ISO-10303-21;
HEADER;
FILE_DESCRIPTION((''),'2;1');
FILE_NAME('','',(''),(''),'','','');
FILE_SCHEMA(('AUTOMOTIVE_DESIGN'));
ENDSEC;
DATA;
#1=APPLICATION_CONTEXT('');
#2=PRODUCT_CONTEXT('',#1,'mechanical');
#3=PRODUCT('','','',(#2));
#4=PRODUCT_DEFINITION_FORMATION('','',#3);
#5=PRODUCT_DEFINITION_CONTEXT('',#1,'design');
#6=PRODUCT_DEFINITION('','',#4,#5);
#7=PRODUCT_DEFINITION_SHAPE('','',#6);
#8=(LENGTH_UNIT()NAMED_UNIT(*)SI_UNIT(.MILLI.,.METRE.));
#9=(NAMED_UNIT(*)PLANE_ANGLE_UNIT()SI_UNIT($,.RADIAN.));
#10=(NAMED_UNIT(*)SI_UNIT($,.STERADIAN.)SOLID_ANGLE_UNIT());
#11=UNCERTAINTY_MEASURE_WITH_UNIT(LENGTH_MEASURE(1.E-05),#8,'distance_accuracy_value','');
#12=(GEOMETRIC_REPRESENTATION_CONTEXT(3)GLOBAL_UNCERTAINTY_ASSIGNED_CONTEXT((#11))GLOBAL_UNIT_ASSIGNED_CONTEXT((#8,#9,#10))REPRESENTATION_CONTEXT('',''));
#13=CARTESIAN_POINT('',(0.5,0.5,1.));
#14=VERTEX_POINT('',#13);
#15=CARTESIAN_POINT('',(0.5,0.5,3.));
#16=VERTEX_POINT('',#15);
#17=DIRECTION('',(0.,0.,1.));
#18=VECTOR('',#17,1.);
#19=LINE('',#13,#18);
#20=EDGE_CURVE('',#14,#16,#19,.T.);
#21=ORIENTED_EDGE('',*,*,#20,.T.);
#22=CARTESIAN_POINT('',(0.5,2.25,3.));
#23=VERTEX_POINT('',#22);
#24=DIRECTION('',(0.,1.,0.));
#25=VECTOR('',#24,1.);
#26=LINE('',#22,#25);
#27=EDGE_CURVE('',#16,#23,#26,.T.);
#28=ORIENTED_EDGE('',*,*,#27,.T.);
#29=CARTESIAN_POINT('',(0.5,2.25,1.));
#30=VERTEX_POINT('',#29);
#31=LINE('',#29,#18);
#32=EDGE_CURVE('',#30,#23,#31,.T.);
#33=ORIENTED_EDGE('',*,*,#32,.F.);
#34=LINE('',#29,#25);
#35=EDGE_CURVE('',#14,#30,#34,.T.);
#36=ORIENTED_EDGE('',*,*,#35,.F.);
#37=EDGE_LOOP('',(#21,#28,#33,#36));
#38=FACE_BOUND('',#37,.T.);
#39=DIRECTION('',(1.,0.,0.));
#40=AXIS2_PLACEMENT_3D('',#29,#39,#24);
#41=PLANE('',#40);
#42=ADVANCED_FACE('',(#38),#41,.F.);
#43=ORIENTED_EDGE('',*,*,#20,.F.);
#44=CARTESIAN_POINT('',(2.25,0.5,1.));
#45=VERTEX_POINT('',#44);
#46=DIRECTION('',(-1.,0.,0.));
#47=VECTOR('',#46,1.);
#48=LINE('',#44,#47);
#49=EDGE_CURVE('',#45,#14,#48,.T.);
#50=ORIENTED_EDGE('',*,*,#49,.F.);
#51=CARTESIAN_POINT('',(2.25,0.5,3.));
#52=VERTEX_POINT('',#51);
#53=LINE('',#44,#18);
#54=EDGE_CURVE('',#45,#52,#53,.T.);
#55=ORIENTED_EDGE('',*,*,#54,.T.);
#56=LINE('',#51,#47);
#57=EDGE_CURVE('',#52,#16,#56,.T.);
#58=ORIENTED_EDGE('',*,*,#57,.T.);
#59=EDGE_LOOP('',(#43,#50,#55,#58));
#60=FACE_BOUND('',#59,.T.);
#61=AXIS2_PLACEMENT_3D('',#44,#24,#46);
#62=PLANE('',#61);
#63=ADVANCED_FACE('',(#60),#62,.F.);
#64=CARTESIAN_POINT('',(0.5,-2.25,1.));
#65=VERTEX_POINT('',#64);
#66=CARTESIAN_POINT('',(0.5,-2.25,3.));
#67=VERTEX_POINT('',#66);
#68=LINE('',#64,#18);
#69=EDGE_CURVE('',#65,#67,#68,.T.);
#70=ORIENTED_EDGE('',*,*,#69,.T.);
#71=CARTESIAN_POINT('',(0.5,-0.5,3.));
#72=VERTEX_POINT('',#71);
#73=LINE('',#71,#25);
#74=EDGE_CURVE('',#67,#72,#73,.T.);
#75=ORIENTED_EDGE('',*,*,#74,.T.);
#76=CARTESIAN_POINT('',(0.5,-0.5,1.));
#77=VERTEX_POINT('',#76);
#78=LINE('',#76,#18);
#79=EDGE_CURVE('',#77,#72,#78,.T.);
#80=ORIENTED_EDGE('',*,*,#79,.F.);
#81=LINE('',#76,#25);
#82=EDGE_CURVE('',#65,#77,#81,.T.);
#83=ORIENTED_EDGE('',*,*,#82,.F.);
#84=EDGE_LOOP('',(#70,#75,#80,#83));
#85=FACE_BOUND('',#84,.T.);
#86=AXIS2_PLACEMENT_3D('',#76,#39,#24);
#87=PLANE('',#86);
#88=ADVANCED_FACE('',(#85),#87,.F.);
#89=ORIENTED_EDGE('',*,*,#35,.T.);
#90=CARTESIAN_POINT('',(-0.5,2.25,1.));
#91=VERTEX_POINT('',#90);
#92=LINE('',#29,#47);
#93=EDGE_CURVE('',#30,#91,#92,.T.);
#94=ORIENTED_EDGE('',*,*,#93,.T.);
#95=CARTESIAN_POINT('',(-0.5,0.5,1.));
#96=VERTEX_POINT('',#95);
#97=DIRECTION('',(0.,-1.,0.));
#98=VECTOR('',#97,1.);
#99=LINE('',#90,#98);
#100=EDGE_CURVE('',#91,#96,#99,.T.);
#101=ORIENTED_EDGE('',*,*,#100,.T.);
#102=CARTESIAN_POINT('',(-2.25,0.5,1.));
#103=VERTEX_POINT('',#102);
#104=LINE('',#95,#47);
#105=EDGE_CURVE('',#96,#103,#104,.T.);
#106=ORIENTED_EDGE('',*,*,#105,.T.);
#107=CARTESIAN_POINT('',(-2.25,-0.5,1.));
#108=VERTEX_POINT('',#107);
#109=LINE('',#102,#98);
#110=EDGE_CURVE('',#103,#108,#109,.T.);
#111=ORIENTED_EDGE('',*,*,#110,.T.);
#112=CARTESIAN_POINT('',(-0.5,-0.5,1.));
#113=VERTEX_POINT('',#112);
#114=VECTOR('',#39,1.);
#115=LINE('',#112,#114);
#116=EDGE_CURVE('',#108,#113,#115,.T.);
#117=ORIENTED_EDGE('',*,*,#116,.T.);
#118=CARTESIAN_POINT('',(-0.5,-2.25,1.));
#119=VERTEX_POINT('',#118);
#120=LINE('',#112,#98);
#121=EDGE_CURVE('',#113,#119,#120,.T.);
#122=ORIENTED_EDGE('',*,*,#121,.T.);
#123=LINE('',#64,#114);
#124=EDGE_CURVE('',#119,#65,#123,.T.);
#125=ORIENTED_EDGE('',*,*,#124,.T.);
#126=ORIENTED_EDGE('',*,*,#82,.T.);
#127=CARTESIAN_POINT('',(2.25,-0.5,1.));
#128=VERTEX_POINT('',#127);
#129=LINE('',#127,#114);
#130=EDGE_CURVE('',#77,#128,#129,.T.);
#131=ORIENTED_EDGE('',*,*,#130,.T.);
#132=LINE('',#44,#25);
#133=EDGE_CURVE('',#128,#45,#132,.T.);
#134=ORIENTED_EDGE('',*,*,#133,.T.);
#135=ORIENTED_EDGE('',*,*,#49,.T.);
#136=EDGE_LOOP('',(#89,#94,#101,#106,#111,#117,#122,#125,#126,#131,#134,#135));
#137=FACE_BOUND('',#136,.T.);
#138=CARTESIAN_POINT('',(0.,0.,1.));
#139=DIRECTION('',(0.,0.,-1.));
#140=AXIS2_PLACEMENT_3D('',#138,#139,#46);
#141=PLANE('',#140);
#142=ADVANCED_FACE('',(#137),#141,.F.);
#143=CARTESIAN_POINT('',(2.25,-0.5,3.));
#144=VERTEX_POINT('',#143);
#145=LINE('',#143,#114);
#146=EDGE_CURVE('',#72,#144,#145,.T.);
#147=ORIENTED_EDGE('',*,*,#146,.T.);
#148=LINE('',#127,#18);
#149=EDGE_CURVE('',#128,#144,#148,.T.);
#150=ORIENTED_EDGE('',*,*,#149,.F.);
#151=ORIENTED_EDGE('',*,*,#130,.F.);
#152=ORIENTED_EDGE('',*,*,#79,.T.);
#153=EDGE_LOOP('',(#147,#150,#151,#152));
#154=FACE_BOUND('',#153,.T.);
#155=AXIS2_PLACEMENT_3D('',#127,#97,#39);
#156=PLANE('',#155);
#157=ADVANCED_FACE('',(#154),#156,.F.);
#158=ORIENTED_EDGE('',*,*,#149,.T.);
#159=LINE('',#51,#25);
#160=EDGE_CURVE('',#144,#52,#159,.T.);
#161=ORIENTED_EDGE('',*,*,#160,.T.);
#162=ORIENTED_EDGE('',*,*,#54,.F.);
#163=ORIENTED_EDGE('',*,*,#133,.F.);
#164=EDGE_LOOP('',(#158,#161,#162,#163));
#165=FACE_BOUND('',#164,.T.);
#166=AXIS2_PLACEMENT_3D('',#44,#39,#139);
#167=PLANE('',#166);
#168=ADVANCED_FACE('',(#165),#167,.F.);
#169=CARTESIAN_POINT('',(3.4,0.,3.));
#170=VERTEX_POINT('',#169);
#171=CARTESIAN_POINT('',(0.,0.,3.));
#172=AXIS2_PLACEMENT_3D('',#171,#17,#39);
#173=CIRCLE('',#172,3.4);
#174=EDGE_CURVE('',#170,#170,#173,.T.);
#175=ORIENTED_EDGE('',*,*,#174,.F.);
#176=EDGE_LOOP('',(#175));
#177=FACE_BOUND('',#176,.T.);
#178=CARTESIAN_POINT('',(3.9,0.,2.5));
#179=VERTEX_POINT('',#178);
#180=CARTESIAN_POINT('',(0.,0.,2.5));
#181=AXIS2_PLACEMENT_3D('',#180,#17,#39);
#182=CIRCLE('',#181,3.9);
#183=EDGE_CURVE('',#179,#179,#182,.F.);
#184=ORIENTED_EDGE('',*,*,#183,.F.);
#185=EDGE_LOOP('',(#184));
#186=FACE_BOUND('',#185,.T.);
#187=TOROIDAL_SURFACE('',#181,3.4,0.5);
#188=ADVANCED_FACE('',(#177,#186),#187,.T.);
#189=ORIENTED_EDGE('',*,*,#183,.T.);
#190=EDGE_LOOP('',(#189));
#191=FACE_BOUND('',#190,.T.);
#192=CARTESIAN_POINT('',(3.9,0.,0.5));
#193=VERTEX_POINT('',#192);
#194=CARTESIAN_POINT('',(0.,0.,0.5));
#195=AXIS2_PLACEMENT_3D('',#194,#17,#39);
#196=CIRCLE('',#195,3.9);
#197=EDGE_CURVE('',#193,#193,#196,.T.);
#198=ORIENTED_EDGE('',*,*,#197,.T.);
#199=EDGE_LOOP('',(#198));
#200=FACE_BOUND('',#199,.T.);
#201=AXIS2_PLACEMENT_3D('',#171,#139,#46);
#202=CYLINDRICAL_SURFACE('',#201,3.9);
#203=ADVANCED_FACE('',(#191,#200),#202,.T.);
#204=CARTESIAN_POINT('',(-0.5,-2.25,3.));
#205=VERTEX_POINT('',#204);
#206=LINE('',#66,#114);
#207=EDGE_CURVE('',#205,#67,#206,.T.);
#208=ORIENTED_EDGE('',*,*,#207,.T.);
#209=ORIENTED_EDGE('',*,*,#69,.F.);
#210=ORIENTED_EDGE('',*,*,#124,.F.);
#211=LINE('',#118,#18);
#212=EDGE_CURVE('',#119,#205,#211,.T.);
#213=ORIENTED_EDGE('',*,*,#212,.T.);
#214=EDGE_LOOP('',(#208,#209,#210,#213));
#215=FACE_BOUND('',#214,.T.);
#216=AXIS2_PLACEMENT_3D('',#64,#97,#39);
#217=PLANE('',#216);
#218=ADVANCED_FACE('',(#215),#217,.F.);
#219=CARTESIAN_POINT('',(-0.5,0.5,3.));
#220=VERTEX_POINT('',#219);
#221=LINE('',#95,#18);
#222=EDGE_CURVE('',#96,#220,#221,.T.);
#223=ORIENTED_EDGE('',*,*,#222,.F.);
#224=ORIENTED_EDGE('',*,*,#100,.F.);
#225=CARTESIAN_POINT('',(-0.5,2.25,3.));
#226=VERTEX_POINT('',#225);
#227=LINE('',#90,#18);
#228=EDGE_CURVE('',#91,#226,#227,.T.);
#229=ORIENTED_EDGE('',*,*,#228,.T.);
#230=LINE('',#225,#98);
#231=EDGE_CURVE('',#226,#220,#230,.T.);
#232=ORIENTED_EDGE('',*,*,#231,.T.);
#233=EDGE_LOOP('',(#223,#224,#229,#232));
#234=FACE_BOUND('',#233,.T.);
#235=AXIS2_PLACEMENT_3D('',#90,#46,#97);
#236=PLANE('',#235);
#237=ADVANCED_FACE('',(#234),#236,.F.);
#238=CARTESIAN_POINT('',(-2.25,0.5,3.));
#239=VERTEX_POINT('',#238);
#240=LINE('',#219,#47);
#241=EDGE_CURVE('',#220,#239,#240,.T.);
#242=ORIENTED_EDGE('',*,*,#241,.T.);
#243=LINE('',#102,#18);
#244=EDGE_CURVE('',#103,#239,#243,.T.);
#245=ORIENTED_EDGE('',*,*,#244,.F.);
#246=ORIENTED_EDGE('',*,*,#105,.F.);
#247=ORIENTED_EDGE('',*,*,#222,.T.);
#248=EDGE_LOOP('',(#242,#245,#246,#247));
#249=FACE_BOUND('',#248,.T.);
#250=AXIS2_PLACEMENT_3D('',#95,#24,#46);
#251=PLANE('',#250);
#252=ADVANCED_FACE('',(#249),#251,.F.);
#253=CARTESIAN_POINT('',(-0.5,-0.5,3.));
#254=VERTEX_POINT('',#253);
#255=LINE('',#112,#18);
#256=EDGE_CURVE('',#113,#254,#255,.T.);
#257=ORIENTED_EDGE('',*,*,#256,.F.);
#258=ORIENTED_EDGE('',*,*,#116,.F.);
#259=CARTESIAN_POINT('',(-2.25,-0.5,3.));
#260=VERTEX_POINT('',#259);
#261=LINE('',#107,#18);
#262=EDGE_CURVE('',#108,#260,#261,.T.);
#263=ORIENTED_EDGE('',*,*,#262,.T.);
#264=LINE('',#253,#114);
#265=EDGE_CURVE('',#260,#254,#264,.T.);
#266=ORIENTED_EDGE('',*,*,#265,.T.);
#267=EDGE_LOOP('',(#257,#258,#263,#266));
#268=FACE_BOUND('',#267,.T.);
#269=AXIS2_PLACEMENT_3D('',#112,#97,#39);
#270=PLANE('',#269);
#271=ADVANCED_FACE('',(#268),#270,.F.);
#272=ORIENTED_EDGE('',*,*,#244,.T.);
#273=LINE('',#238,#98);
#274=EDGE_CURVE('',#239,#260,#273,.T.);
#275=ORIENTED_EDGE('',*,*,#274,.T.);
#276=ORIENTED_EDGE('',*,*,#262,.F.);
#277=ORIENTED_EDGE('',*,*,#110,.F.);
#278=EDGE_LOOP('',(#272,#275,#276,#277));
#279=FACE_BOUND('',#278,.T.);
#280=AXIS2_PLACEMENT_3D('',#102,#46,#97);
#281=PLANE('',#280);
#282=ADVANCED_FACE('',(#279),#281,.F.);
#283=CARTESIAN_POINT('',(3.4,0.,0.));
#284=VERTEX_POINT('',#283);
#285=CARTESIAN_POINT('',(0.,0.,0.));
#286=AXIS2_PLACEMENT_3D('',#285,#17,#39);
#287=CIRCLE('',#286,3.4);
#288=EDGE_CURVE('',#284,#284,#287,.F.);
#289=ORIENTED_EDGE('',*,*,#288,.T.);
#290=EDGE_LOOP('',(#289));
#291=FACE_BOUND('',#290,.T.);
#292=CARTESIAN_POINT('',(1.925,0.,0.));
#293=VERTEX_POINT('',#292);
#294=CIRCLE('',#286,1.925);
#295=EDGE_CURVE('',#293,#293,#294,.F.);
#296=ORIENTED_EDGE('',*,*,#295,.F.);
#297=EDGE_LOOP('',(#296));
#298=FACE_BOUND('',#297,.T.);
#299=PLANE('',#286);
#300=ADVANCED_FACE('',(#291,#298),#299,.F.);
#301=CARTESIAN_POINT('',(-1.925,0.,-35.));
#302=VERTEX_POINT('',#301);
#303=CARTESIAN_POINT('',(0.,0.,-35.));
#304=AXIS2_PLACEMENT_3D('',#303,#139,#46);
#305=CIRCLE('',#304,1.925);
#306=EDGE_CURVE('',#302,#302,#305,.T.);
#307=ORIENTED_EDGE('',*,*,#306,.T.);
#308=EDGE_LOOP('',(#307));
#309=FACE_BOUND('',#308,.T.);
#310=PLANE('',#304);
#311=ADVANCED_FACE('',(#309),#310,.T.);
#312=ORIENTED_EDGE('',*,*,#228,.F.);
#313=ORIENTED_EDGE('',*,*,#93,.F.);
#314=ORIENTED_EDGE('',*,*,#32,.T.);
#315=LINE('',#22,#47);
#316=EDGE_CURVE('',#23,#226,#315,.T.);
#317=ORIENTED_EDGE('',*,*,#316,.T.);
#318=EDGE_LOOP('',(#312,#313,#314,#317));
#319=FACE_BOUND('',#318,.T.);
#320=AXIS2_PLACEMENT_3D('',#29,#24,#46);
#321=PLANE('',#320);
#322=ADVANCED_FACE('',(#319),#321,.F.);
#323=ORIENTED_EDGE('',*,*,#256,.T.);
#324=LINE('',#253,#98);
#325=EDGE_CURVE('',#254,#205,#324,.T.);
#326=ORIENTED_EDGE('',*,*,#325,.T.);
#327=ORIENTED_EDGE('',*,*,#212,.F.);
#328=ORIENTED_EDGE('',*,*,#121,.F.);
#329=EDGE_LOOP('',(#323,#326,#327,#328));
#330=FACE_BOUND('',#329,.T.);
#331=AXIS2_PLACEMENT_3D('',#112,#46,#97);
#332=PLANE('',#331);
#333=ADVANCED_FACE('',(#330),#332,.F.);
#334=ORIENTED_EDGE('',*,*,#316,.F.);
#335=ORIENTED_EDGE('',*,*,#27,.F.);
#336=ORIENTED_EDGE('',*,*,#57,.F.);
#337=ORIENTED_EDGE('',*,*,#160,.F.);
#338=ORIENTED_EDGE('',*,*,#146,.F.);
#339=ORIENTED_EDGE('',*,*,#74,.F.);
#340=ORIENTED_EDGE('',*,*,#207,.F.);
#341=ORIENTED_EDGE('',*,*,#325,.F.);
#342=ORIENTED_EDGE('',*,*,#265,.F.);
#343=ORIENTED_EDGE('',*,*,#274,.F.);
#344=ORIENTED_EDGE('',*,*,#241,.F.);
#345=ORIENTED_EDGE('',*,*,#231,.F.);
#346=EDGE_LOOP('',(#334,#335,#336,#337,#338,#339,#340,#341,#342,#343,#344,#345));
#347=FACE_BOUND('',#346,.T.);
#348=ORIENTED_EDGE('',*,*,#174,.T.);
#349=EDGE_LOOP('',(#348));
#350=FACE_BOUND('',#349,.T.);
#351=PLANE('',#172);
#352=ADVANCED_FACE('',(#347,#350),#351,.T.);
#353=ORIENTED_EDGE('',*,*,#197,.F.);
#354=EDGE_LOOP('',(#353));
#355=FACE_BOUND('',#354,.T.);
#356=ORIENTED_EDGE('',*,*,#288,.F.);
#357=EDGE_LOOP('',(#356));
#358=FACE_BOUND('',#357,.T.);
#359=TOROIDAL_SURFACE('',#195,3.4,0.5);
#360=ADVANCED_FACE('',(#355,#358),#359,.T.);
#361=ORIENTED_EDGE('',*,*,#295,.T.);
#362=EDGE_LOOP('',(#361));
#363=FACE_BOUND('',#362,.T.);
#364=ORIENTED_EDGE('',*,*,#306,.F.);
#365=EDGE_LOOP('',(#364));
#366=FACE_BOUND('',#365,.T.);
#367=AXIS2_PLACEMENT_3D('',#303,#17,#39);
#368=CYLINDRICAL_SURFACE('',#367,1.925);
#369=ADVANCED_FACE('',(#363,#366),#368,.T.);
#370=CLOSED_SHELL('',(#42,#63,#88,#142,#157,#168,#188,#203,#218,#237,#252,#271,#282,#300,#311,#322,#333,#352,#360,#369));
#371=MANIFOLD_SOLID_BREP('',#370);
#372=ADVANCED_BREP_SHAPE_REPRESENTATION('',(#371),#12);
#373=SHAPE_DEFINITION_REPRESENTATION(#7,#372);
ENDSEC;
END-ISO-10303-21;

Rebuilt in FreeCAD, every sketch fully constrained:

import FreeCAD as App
import Part
import Sketcher
from FreeCAD import Vector
Q = App.Units.Quantity


def edges_at(feature, points):
    """Names of the edges that pass closest to the given points."""
    edges = feature.Shape.Edges
    near = lambda p: min(range(len(edges)), key=lambda i: edges[i].distToShape(Part.Vertex(*p))[0])
    return sorted({f"Edge{near(p) + 1}" for p in points})

doc = App.newDocument("Part")
params = doc.addObject("Spreadsheet::Sheet", "Params")
for row, (alias, value) in enumerate([
    ("sketch1_diameter", "7.8 mm"),
    ("pad1_length", "3 mm"),
    ("sketch2_width", "1 mm"),
    ("sketch2_width2", "1.75 mm"),
    ("pocket1_length", "2 mm"),
    ("fillet_radius", "0.5 mm"),
    ("sketch3_diameter", "3.85 mm"),
    ("pad2_length", "35 mm"),
], start=1):
    params.set(f"A{row}", alias)
    params.set(f"B{row}", "=" + value)
    params.setAlias(f"B{row}", alias)

body = doc.addObject("PartDesign::Body", "Body")

# Sketch on XY plane
sketch1 = doc.addObject("Sketcher::SketchObject", "Sketch")
body.addObject(sketch1)
sketch1.AttachmentSupport = (doc.XY_Plane, [""])
sketch1.MapMode = "FlatFace"
sketch1.addGeometry(Part.Circle(Vector(0, 0, 0), Vector(0, 0, 1), 3.9), False)
sketch1.addConstraint(Sketcher.Constraint("Coincident", 0, 3, -1, 1))
sketch1.addConstraint(Sketcher.Constraint("Diameter", 0, Q("7.8 mm")))
sketch1.setExpression("Constraints[1]", "Params.sketch1_diameter")
pad1 = doc.addObject("PartDesign::Pad", "Pad")
body.addObject(pad1)
pad1.Profile = sketch1
pad1.setExpression("Length", "Params.pad1_length")

# Sketch on XY plane
sketch2 = doc.addObject("Sketcher::SketchObject", "Sketch001")
body.addObject(sketch2)
sketch2.AttachmentSupport = (doc.XY_Plane, [""])
sketch2.MapMode = "FlatFace"
sketch2.AttachmentOffset = App.Placement(Vector(0, 0, 3), App.Rotation())
sketch2.addGeometry(Part.LineSegment(Vector(-2.2, -0.5, 0), Vector(-0.5, -0.5, 0)), False)
sketch2.addGeometry(Part.LineSegment(Vector(-0.5, -0.5, 0), Vector(-0.5, -2.2, 0)), False)
sketch2.addGeometry(Part.LineSegment(Vector(-0.5, -2.2, 0), Vector(0.5, -2.2, 0)), False)
sketch2.addGeometry(Part.LineSegment(Vector(0.5, -2.2, 0), Vector(0.5, -0.5, 0)), False)
sketch2.addGeometry(Part.LineSegment(Vector(0.5, -0.5, 0), Vector(2.2, -0.5, 0)), False)
sketch2.addGeometry(Part.LineSegment(Vector(2.2, -0.5, 0), Vector(2.2, 0.5, 0)), False)
sketch2.addGeometry(Part.LineSegment(Vector(2.2, 0.5, 0), Vector(0.5, 0.5, 0)), False)
sketch2.addGeometry(Part.LineSegment(Vector(0.5, 0.5, 0), Vector(0.5, 2.2, 0)), False)
sketch2.addGeometry(Part.LineSegment(Vector(0.5, 2.2, 0), Vector(-0.5, 2.2, 0)), False)
sketch2.addGeometry(Part.LineSegment(Vector(-0.5, 2.2, 0), Vector(-0.5, 0.5, 0)), False)
sketch2.addGeometry(Part.LineSegment(Vector(-0.5, 0.5, 0), Vector(-2.2, 0.5, 0)), False)
sketch2.addGeometry(Part.LineSegment(Vector(-2.2, 0.5, 0), Vector(-2.2, -0.5, 0)), False)
sketch2.addConstraint(Sketcher.Constraint("Coincident", 0, 2, 1, 1))
sketch2.addConstraint(Sketcher.Constraint("Coincident", 1, 2, 2, 1))
sketch2.addConstraint(Sketcher.Constraint("Coincident", 2, 2, 3, 1))
sketch2.addConstraint(Sketcher.Constraint("Coincident", 3, 2, 4, 1))
sketch2.addConstraint(Sketcher.Constraint("Coincident", 4, 2, 5, 1))
sketch2.addConstraint(Sketcher.Constraint("Coincident", 5, 2, 6, 1))
sketch2.addConstraint(Sketcher.Constraint("Coincident", 6, 2, 7, 1))
sketch2.addConstraint(Sketcher.Constraint("Coincident", 7, 2, 8, 1))
sketch2.addConstraint(Sketcher.Constraint("Coincident", 8, 2, 9, 1))
sketch2.addConstraint(Sketcher.Constraint("Coincident", 9, 2, 10, 1))
sketch2.addConstraint(Sketcher.Constraint("Coincident", 10, 2, 11, 1))
sketch2.addConstraint(Sketcher.Constraint("Coincident", 11, 2, 0, 1))
sketch2.addConstraint(Sketcher.Constraint("Horizontal", 0))
sketch2.addConstraint(Sketcher.Constraint("Vertical", 1))
sketch2.addConstraint(Sketcher.Constraint("Horizontal", 2))
sketch2.addConstraint(Sketcher.Constraint("Vertical", 3))
sketch2.addConstraint(Sketcher.Constraint("Horizontal", 4))
sketch2.addConstraint(Sketcher.Constraint("Vertical", 5))
sketch2.addConstraint(Sketcher.Constraint("Horizontal", 6))
sketch2.addConstraint(Sketcher.Constraint("Vertical", 7))
sketch2.addConstraint(Sketcher.Constraint("Horizontal", 8))
sketch2.addConstraint(Sketcher.Constraint("Vertical", 9))
sketch2.addConstraint(Sketcher.Constraint("Horizontal", 10))
sketch2.addConstraint(Sketcher.Constraint("Vertical", 11))
sketch2.addConstraint(Sketcher.Constraint("Symmetric", 0, 2, 6, 2, -1, 1))
sketch2.addConstraint(Sketcher.Constraint("Symmetric", 2, 2, 8, 2, -1, 1))
sketch2.addConstraint(Sketcher.Constraint("Symmetric", 4, 2, 10, 2, -1, 1))
sketch2.addConstraint(Sketcher.Constraint("Symmetric", 0, 2, 3, 2, -2))
sketch2.addConstraint(Sketcher.Constraint("Equal", 10, 1))
sketch2.addConstraint(Sketcher.Constraint("Equal", 8, 5))
sketch2.addConstraint(Sketcher.Constraint("DistanceX", 2, 1, 2, 2, Q("1 mm")))
sketch2.addConstraint(Sketcher.Constraint("DistanceX", 0, 1, 0, 2, Q("1.75 mm")))
sketch2.setExpression("Constraints[30]", "Params.sketch2_width")
sketch2.setExpression("Constraints[31]", "Params.sketch2_width2")
pocket1 = doc.addObject("PartDesign::Pocket", "Pocket")
body.addObject(pocket1)
pocket1.Profile = sketch2
pocket1.setExpression("Length", "Params.pocket1_length")
doc.recompute()

fillet = doc.addObject("PartDesign::Fillet", "Fillet")
body.addObject(fillet)
fillet.Base = (pocket1, edges_at(pocket1, [(-3.9, 0, 0), (-3.9, 0, 3)]))
fillet.setExpression("Radius", "Params.fillet_radius")

# Sketch on XY plane
sketch3 = doc.addObject("Sketcher::SketchObject", "Sketch002")
body.addObject(sketch3)
sketch3.AttachmentSupport = (doc.XY_Plane, [""])
sketch3.MapMode = "FlatFace"
sketch3.addGeometry(Part.Circle(Vector(0, 0, 0), Vector(0, 0, 1), 1.9), False)
sketch3.addConstraint(Sketcher.Constraint("Coincident", 0, 3, -1, 1))
sketch3.addConstraint(Sketcher.Constraint("Diameter", 0, Q("3.85 mm")))
sketch3.setExpression("Constraints[1]", "Params.sketch3_diameter")
pad2 = doc.addObject("PartDesign::Pad", "Pad001")
body.addObject(pad2)
pad2.Profile = sketch3
pad2.setExpression("Length", "Params.pad2_length")
pad2.Reversed = True

doc.recompute()
